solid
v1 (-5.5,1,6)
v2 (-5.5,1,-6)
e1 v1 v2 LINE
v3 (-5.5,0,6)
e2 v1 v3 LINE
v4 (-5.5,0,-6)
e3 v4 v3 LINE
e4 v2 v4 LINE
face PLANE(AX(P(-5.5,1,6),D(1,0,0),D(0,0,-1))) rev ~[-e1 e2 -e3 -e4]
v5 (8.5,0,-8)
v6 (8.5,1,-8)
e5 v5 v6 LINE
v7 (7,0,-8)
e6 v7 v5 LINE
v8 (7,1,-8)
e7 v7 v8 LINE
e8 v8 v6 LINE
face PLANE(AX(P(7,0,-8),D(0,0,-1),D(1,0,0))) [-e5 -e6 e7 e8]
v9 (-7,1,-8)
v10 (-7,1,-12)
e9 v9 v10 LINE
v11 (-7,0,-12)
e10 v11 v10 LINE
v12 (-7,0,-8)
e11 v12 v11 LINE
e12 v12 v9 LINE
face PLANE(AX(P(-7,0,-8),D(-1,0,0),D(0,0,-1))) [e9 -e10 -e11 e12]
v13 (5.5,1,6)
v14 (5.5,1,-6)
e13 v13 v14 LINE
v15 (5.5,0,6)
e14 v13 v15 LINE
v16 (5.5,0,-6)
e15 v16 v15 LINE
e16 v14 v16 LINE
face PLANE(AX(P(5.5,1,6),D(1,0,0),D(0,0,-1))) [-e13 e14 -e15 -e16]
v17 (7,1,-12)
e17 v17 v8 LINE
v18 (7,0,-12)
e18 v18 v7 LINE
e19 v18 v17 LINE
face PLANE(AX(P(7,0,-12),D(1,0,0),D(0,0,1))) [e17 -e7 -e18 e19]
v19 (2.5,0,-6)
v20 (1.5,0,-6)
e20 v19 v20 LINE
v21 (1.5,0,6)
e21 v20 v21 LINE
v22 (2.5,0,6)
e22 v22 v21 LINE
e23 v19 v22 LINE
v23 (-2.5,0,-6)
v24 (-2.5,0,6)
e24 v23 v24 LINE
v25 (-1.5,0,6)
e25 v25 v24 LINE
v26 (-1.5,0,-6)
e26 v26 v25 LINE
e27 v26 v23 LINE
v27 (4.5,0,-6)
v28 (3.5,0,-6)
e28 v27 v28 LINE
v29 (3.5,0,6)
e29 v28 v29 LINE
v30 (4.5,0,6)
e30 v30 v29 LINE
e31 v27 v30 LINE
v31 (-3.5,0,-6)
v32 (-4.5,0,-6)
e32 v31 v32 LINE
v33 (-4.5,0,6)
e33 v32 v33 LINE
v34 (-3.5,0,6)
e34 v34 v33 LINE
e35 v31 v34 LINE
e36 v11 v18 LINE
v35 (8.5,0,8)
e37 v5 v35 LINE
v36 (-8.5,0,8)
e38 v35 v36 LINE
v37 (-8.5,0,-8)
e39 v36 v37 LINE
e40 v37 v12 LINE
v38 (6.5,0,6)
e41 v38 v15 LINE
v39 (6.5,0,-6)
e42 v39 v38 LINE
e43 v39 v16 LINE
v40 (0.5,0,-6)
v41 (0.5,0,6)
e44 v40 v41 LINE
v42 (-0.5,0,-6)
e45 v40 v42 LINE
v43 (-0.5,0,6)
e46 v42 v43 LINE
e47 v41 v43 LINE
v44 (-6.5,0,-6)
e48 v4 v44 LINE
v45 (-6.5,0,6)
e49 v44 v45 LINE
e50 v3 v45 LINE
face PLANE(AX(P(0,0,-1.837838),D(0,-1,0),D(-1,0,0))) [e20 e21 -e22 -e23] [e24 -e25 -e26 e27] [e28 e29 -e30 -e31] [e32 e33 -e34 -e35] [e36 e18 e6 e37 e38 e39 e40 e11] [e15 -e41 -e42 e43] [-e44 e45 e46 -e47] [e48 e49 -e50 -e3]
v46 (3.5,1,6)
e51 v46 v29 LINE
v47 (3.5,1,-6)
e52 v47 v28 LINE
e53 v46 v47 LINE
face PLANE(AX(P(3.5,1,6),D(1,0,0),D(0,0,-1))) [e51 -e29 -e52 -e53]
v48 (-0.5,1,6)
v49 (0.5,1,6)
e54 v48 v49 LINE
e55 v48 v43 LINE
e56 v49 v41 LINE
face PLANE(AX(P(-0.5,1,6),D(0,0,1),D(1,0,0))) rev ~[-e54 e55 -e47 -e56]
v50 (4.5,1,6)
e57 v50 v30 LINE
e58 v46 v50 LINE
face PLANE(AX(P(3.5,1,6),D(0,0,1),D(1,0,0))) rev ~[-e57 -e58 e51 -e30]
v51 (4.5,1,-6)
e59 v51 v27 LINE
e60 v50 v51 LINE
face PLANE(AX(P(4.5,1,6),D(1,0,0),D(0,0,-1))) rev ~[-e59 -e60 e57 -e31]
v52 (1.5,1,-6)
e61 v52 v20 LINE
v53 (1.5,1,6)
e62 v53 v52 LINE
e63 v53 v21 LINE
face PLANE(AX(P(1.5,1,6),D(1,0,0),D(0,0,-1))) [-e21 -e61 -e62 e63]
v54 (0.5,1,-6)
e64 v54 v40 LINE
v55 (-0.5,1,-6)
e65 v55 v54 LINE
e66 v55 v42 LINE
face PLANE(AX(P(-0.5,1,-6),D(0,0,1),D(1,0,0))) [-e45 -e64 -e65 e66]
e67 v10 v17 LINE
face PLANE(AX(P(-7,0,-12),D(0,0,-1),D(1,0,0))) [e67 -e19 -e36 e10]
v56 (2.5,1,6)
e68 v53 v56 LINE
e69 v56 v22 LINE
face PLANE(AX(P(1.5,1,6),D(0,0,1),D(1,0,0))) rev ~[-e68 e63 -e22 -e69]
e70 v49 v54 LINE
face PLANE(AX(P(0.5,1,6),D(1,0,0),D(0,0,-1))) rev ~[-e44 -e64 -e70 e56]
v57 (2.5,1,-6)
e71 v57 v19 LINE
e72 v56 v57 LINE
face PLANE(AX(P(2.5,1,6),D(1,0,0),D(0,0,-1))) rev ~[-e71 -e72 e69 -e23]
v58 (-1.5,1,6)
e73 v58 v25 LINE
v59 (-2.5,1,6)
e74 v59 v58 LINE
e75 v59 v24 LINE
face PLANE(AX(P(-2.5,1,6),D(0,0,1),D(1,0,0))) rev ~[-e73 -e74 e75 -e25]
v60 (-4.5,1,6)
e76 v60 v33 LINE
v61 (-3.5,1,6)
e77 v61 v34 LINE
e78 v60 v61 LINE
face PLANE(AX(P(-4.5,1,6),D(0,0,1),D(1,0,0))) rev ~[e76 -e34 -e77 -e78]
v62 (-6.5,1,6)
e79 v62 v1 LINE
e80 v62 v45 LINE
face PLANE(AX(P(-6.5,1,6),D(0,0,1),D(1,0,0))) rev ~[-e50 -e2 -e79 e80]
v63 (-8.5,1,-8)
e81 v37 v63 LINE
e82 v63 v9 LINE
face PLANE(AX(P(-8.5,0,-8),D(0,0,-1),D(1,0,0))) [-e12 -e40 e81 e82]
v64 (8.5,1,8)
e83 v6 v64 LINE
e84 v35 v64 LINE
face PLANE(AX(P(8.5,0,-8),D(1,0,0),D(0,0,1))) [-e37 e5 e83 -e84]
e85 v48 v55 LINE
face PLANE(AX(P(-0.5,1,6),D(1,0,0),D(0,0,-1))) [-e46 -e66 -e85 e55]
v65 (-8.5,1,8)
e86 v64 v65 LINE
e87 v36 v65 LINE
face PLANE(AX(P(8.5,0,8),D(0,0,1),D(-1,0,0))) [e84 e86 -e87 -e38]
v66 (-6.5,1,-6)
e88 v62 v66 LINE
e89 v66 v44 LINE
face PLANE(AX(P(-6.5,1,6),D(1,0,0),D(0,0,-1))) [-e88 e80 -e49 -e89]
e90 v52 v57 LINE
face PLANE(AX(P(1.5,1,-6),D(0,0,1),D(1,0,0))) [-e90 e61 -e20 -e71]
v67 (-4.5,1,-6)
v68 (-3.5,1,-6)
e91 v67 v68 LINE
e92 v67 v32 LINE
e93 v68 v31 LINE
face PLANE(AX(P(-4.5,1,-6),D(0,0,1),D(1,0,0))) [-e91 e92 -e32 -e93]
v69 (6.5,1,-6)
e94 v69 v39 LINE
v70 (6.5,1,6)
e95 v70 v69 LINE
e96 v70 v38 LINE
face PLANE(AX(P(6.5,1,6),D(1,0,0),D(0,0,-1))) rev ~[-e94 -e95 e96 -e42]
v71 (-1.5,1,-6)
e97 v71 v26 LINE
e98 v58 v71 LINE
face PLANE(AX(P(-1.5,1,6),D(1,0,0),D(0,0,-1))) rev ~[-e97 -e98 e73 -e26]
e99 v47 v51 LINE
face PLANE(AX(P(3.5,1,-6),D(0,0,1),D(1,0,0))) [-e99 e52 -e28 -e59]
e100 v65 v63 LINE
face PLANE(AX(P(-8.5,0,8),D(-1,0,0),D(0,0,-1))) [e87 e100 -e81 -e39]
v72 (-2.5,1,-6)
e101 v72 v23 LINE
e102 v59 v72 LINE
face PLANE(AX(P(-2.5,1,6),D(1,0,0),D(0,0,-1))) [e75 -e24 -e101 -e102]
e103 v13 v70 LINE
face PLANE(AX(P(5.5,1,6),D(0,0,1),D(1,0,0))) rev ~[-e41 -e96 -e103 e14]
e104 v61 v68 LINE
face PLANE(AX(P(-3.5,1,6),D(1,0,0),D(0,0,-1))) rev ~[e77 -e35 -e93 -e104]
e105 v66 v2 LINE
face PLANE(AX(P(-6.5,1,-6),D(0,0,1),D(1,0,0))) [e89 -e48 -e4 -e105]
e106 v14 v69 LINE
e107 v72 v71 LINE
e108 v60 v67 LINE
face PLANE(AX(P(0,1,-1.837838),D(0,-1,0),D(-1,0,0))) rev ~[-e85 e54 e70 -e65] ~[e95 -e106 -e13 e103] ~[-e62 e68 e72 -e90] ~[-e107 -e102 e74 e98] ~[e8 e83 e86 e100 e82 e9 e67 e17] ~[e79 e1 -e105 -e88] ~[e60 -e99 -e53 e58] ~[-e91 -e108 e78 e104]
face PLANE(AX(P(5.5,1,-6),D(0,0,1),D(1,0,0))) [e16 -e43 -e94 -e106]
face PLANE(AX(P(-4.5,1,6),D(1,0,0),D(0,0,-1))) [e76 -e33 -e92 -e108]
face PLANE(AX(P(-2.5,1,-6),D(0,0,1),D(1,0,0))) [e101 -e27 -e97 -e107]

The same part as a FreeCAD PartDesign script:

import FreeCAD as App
import Part
import Sketcher
from FreeCAD import Vector

doc = App.newDocument("Part")
body = doc.addObject("PartDesign::Body", "Body")

sketch1 = body.newObject("Sketcher::SketchObject", "Sketch")
sketch1.AttachmentSupport = (doc.getObject("XZ_Plane"), [""])
sketch1.MapMode = "FlatFace"
sketch1.addGeometry(Part.LineSegment(Vector(-8.5, -8, 0), Vector(-8.5, 8, 0)), False)
sketch1.addGeometry(Part.LineSegment(Vector(-8.5, 8, 0), Vector(8.5, 8, 0)), False)
sketch1.addGeometry(Part.LineSegment(Vector(8.5, 8, 0), Vector(8.5, -8, 0)), False)
sketch1.addGeometry(Part.LineSegment(Vector(8.5, -8, 0), Vector(7, -8, 0)), False)
sketch1.addGeometry(Part.LineSegment(Vector(7, -8, 0), Vector(7, -12, 0)), False)
sketch1.addGeometry(Part.LineSegment(Vector(7, -12, 0), Vector(-7, -12, 0)), False)
sketch1.addGeometry(Part.LineSegment(Vector(-7, -12, 0), Vector(-7, -8, 0)), False)
sketch1.addGeometry(Part.LineSegment(Vector(-7, -8, 0), Vector(-8.5, -8, 0)), False)
sketch1.addConstraint(Sketcher.Constraint("Coincident", 0, 2, 1, 1))
sketch1.addConstraint(Sketcher.Constraint("Coincident", 1, 2, 2, 1))
sketch1.addConstraint(Sketcher.Constraint("Coincident", 2, 2, 3, 1))
sketch1.addConstraint(Sketcher.Constraint("Coincident", 3, 2, 4, 1))
sketch1.addConstraint(Sketcher.Constraint("Coincident", 4, 2, 5, 1))
sketch1.addConstraint(Sketcher.Constraint("Coincident", 5, 2, 6, 1))
sketch1.addConstraint(Sketcher.Constraint("Coincident", 6, 2, 7, 1))
sketch1.addConstraint(Sketcher.Constraint("Coincident", 7, 2, 0, 1))
sketch1.addConstraint(Sketcher.Constraint("Vertical", 0))
sketch1.addConstraint(Sketcher.Constraint("Horizontal", 1))
sketch1.addConstraint(Sketcher.Constraint("Vertical", 2))
sketch1.addConstraint(Sketcher.Constraint("Horizontal", 3))
sketch1.addConstraint(Sketcher.Constraint("Vertical", 4))
sketch1.addConstraint(Sketcher.Constraint("Horizontal", 5))
sketch1.addConstraint(Sketcher.Constraint("Vertical", 6))
sketch1.addConstraint(Sketcher.Constraint("Horizontal", 7))
sketch1.addConstraint(Sketcher.Constraint("Symmetric", 0, 2, 2, 2, -1, 1))
sketch1.addConstraint(Sketcher.Constraint("Symmetric", 3, 2, 6, 2, -2))
sketch1.addConstraint(Sketcher.Constraint("DistanceX", 1, 1, 1, 2, 17.0))
sketch1.addConstraint(Sketcher.Constraint("DistanceX", 5, 2, 5, 1, 14.0))
sketch1.addConstraint(Sketcher.Constraint("DistanceY", 0, 1, 0, 2, 16.0))
sketch1.addConstraint(Sketcher.Constraint("DistanceY", 4, 2, 4, 1, 4.0))
pad1 = body.newObject("PartDesign::Pad", "Pad")
pad1.Profile = sketch1
pad1.Length = 1
pad1.Reversed = True

sketch2 = body.newObject("Sketcher::SketchObject", "Sketch001")
sketch2.AttachmentSupport = (doc.getObject("XZ_Plane"), [""])
sketch2.MapMode = "FlatFace"
sketch2.AttachmentOffset = App.Placement(Vector(0, 0, -1), App.Rotation())
sketch2.addGeometry(Part.LineSegment(Vector(-0.5, -6, 0), Vector(-0.5, 6, 0)), False)
sketch2.addGeometry(Part.LineSegment(Vector(-0.5, 6, 0), Vector(0.5, 6, 0)), False)
sketch2.addGeometry(Part.LineSegment(Vector(0.5, 6, 0), Vector(0.5, -6, 0)), False)
sketch2.addGeometry(Part.LineSegment(Vector(0.5, -6, 0), Vector(-0.5, -6, 0)), False)
sketch2.addGeometry(Part.LineSegment(Vector(1.5, -6, 0), Vector(1.5, 6, 0)), False)
sketch2.addGeometry(Part.LineSegment(Vector(1.5, 6, 0), Vector(2.5, 6, 0)), False)
sketch2.addGeometry(Part.LineSegment(Vector(2.5, 6, 0), Vector(2.5, -6, 0)), False)
sketch2.addGeometry(Part.LineSegment(Vector(2.5, -6, 0), Vector(1.5, -6, 0)), False)
sketch2.addGeometry(Part.LineSegment(Vector(5.5, -6, 0), Vector(5.5, 6, 0)), False)
sketch2.addGeometry(Part.LineSegment(Vector(5.5, 6, 0), Vector(6.5, 6, 0)), False)
sketch2.addGeometry(Part.LineSegment(Vector(6.5, 6, 0), Vector(6.5, -6, 0)), False)
sketch2.addGeometry(Part.LineSegment(Vector(6.5, -6, 0), Vector(5.5, -6, 0)), False)
sketch2.addGeometry(Part.LineSegment(Vector(3.5, -6, 0), Vector(3.5, 6, 0)), False)
sketch2.addGeometry(Part.LineSegment(Vector(3.5, 6, 0), Vector(4.5, 6, 0)), False)
sketch2.addGeometry(Part.LineSegment(Vector(4.5, 6, 0), Vector(4.5, -6, 0)), False)
sketch2.addGeometry(Part.LineSegment(Vector(4.5, -6, 0), Vector(3.5, -6, 0)), False)
sketch2.addGeometry(Part.LineSegment(Vector(-2.5, -6, 0), Vector(-2.5, 6, 0)), False)
sketch2.addGeometry(Part.LineSegment(Vector(-2.5, 6, 0), Vector(-1.5, 6, 0)), False)
sketch2.addGeometry(Part.LineSegment(Vector(-1.5, 6, 0), Vector(-1.5, -6, 0)), False)
sketch2.addGeometry(Part.LineSegment(Vector(-1.5, -6, 0), Vector(-2.5, -6, 0)), False)
sketch2.addGeometry(Part.LineSegment(Vector(-4.5, -6, 0), Vector(-4.5, 6, 0)), False)
sketch2.addGeometry(Part.LineSegment(Vector(-4.5, 6, 0), Vector(-3.5, 6, 0)), False)
sketch2.addGeometry(Part.LineSegment(Vector(-3.5, 6, 0), Vector(-3.5, -6, 0)), False)
sketch2.addGeometry(Part.LineSegment(Vector(-3.5, -6, 0), Vector(-4.5, -6, 0)), False)
sketch2.addGeometry(Part.LineSegment(Vector(-6.5, -6, 0), Vector(-6.5, 6, 0)), False)
sketch2.addGeometry(Part.LineSegment(Vector(-6.5, 6, 0), Vector(-5.5, 6, 0)), False)
sketch2.addGeometry(Part.LineSegment(Vector(-5.5, 6, 0), Vector(-5.5, -6, 0)), False)
sketch2.addGeometry(Part.LineSegment(Vector(-5.5, -6, 0), Vector(-6.5, -6, 0)), False)
sketch2.addConstraint(Sketcher.Constraint("Coincident", 0, 2, 1, 1))
sketch2.addConstraint(Sketcher.Constraint("Coincident", 1, 2, 2, 1))
sketch2.addConstraint(Sketcher.Constraint("Coincident", 2, 2, 3, 1))
sketch2.addConstraint(Sketcher.Constraint("Coincident", 3, 2, 0, 1))
sketch2.addConstraint(Sketcher.Constraint("Coincident", 4, 2, 5, 1))
sketch2.addConstraint(Sketcher.Constraint("Coincident", 5, 2, 6, 1))
sketch2.addConstraint(Sketcher.Constraint("Coincident", 6, 2, 7, 1))
sketch2.addConstraint(Sketcher.Constraint("Coincident", 7, 2, 4, 1))
sketch2.addConstraint(Sketcher.Constraint("Coincident", 8, 2, 9, 1))
sketch2.addConstraint(Sketcher.Constraint("Coincident", 9, 2, 10, 1))
sketch2.addConstraint(Sketcher.Constraint("Coincident", 10, 2, 11, 1))
sketch2.addConstraint(Sketcher.Constraint("Coincident", 11, 2, 8, 1))
sketch2.addConstraint(Sketcher.Constraint("Coincident", 12, 2, 13, 1))
sketch2.addConstraint(Sketcher.Constraint("Coincident", 13, 2, 14, 1))
sketch2.addConstraint(Sketcher.Constraint("Coincident", 14, 2, 15, 1))
sketch2.addConstraint(Sketcher.Constraint("Coincident", 15, 2, 12, 1))
sketch2.addConstraint(Sketcher.Constraint("Coincident", 16, 2, 17, 1))
sketch2.addConstraint(Sketcher.Constraint("Coincident", 17, 2, 18, 1))
sketch2.addConstraint(Sketcher.Constraint("Coincident", 18, 2, 19, 1))
sketch2.addConstraint(Sketcher.Constraint("Coincident", 19, 2, 16, 1))
sketch2.addConstraint(Sketcher.Constraint("Coincident", 20, 2, 21, 1))
sketch2.addConstraint(Sketcher.Constraint("Coincident", 21, 2, 22, 1))
sketch2.addConstraint(Sketcher.Constraint("Coincident", 22, 2, 23, 1))
sketch2.addConstraint(Sketcher.Constraint("Coincident", 23, 2, 20, 1))
sketch2.addConstraint(Sketcher.Constraint("Coincident", 24, 2, 25, 1))
sketch2.addConstraint(Sketcher.Constraint("Coincident", 25, 2, 26, 1))
sketch2.addConstraint(Sketcher.Constraint("Coincident", 26, 2, 27, 1))
sketch2.addConstraint(Sketcher.Constraint("Coincident", 27, 2, 24, 1))
sketch2.addConstraint(Sketcher.Constraint("Vertical", 0))
sketch2.addConstraint(Sketcher.Constraint("Horizontal", 1))
sketch2.addConstraint(Sketcher.Constraint("Vertical", 2))
sketch2.addConstraint(Sketcher.Constraint("Horizontal", 3))
sketch2.addConstraint(Sketcher.Constraint("Vertical", 4))
sketch2.addConstraint(Sketcher.Constraint("Horizontal", 5))
sketch2.addConstraint(Sketcher.Constraint("Vertical", 6))
sketch2.addConstraint(Sketcher.Constraint("Horizontal", 7))
sketch2.addConstraint(Sketcher.Constraint("Vertical", 8))
sketch2.addConstraint(Sketcher.Constraint("Horizontal", 9))
sketch2.addConstraint(Sketcher.Constraint("Vertical", 10))
sketch2.addConstraint(Sketcher.Constraint("Horizontal", 11))
sketch2.addConstraint(Sketcher.Constraint("Vertical", 12))
sketch2.addConstraint(Sketcher.Constraint("Horizontal", 13))
sketch2.addConstraint(Sketcher.Constraint("Vertical", 14))
sketch2.addConstraint(Sketcher.Constraint("Horizontal", 15))
sketch2.addConstraint(Sketcher.Constraint("Vertical", 16))
sketch2.addConstraint(Sketcher.Constraint("Horizontal", 17))
sketch2.addConstraint(Sketcher.Constraint("Vertical", 18))
sketch2.addConstraint(Sketcher.Constraint("Horizontal", 19))
sketch2.addConstraint(Sketcher.Constraint("Vertical", 20))
sketch2.addConstraint(Sketcher.Constraint("Horizontal", 21))
sketch2.addConstraint(Sketcher.Constraint("Vertical", 22))
sketch2.addConstraint(Sketcher.Constraint("Horizontal", 23))
sketch2.addConstraint(Sketcher.Constraint("Vertical", 24))
sketch2.addConstraint(Sketcher.Constraint("Horizontal", 25))
sketch2.addConstraint(Sketcher.Constraint("Vertical", 26))
sketch2.addConstraint(Sketcher.Constraint("Horizontal", 27))
sketch2.addConstraint(Sketcher.Constraint("Symmetric", 0, 2, 2, 2, -1, 1))
sketch2.addConstraint(Sketcher.Constraint("Symmetric", 6, 2, 16, 2, -1, 1))
sketch2.addConstraint(Sketcher.Constraint("Symmetric", 4, 2, 18, 2, -1, 1))
sketch2.addConstraint(Sketcher.Constraint("Symmetric", 14, 2, 20, 2, -1, 1))
sketch2.addConstraint(Sketcher.Constraint("Symmetric", 12, 2, 22, 2, -1, 1))
sketch2.addConstraint(Sketcher.Constraint("Symmetric", 10, 2, 24, 2, -1, 1))
sketch2.addConstraint(Sketcher.Constraint("Symmetric", 8, 2, 26, 2, -1, 1))
sketch2.addConstraint(Sketcher.Constraint("Horizontal", 1, 2, 4, 2))
sketch2.addConstraint(Sketcher.Constraint("Horizontal", 3, 2, 6, 2))
sketch2.addConstraint(Sketcher.Constraint("Horizontal", 5, 2, 8, 2))
sketch2.addConstraint(Sketcher.Constraint("Horizontal", 7, 2, 10, 2))
sketch2.addConstraint(Sketcher.Constraint("Horizontal", 9, 2, 12, 2))
sketch2.addConstraint(Sketcher.Constraint("Horizontal", 11, 2, 14, 2))
sketch2.addConstraint(Sketcher.Constraint("Equal", 3, 5))
sketch2.addConstraint(Sketcher.Constraint("Equal", 7, 9))
sketch2.addConstraint(Sketcher.Constraint("Equal", 11, 13))
sketch2.addConstraint(Sketcher.Constraint("DistanceX", 1, 1, 1, 2, 1.0))
sketch2.addConstraint(Sketcher.Constraint("DistanceY", 0, 1, 0, 2, 12.0))
sketch2.addConstraint(Sketcher.Constraint("DistanceX", 1, 2, 4, 2, 1.0))
sketch2.addConstraint(Sketcher.Constraint("DistanceX", 5, 2, 8, 2, 3.0))
sketch2.addConstraint(Sketcher.Constraint("DistanceX", 5, 2, 12, 2, 1.0))
pocket1 = body.newObject("PartDesign::Pocket", "Pocket")
pocket1.Profile = sketch2
pocket1.Type = "ThroughAll"
pocket1.Reversed = True

doc.recompute()
